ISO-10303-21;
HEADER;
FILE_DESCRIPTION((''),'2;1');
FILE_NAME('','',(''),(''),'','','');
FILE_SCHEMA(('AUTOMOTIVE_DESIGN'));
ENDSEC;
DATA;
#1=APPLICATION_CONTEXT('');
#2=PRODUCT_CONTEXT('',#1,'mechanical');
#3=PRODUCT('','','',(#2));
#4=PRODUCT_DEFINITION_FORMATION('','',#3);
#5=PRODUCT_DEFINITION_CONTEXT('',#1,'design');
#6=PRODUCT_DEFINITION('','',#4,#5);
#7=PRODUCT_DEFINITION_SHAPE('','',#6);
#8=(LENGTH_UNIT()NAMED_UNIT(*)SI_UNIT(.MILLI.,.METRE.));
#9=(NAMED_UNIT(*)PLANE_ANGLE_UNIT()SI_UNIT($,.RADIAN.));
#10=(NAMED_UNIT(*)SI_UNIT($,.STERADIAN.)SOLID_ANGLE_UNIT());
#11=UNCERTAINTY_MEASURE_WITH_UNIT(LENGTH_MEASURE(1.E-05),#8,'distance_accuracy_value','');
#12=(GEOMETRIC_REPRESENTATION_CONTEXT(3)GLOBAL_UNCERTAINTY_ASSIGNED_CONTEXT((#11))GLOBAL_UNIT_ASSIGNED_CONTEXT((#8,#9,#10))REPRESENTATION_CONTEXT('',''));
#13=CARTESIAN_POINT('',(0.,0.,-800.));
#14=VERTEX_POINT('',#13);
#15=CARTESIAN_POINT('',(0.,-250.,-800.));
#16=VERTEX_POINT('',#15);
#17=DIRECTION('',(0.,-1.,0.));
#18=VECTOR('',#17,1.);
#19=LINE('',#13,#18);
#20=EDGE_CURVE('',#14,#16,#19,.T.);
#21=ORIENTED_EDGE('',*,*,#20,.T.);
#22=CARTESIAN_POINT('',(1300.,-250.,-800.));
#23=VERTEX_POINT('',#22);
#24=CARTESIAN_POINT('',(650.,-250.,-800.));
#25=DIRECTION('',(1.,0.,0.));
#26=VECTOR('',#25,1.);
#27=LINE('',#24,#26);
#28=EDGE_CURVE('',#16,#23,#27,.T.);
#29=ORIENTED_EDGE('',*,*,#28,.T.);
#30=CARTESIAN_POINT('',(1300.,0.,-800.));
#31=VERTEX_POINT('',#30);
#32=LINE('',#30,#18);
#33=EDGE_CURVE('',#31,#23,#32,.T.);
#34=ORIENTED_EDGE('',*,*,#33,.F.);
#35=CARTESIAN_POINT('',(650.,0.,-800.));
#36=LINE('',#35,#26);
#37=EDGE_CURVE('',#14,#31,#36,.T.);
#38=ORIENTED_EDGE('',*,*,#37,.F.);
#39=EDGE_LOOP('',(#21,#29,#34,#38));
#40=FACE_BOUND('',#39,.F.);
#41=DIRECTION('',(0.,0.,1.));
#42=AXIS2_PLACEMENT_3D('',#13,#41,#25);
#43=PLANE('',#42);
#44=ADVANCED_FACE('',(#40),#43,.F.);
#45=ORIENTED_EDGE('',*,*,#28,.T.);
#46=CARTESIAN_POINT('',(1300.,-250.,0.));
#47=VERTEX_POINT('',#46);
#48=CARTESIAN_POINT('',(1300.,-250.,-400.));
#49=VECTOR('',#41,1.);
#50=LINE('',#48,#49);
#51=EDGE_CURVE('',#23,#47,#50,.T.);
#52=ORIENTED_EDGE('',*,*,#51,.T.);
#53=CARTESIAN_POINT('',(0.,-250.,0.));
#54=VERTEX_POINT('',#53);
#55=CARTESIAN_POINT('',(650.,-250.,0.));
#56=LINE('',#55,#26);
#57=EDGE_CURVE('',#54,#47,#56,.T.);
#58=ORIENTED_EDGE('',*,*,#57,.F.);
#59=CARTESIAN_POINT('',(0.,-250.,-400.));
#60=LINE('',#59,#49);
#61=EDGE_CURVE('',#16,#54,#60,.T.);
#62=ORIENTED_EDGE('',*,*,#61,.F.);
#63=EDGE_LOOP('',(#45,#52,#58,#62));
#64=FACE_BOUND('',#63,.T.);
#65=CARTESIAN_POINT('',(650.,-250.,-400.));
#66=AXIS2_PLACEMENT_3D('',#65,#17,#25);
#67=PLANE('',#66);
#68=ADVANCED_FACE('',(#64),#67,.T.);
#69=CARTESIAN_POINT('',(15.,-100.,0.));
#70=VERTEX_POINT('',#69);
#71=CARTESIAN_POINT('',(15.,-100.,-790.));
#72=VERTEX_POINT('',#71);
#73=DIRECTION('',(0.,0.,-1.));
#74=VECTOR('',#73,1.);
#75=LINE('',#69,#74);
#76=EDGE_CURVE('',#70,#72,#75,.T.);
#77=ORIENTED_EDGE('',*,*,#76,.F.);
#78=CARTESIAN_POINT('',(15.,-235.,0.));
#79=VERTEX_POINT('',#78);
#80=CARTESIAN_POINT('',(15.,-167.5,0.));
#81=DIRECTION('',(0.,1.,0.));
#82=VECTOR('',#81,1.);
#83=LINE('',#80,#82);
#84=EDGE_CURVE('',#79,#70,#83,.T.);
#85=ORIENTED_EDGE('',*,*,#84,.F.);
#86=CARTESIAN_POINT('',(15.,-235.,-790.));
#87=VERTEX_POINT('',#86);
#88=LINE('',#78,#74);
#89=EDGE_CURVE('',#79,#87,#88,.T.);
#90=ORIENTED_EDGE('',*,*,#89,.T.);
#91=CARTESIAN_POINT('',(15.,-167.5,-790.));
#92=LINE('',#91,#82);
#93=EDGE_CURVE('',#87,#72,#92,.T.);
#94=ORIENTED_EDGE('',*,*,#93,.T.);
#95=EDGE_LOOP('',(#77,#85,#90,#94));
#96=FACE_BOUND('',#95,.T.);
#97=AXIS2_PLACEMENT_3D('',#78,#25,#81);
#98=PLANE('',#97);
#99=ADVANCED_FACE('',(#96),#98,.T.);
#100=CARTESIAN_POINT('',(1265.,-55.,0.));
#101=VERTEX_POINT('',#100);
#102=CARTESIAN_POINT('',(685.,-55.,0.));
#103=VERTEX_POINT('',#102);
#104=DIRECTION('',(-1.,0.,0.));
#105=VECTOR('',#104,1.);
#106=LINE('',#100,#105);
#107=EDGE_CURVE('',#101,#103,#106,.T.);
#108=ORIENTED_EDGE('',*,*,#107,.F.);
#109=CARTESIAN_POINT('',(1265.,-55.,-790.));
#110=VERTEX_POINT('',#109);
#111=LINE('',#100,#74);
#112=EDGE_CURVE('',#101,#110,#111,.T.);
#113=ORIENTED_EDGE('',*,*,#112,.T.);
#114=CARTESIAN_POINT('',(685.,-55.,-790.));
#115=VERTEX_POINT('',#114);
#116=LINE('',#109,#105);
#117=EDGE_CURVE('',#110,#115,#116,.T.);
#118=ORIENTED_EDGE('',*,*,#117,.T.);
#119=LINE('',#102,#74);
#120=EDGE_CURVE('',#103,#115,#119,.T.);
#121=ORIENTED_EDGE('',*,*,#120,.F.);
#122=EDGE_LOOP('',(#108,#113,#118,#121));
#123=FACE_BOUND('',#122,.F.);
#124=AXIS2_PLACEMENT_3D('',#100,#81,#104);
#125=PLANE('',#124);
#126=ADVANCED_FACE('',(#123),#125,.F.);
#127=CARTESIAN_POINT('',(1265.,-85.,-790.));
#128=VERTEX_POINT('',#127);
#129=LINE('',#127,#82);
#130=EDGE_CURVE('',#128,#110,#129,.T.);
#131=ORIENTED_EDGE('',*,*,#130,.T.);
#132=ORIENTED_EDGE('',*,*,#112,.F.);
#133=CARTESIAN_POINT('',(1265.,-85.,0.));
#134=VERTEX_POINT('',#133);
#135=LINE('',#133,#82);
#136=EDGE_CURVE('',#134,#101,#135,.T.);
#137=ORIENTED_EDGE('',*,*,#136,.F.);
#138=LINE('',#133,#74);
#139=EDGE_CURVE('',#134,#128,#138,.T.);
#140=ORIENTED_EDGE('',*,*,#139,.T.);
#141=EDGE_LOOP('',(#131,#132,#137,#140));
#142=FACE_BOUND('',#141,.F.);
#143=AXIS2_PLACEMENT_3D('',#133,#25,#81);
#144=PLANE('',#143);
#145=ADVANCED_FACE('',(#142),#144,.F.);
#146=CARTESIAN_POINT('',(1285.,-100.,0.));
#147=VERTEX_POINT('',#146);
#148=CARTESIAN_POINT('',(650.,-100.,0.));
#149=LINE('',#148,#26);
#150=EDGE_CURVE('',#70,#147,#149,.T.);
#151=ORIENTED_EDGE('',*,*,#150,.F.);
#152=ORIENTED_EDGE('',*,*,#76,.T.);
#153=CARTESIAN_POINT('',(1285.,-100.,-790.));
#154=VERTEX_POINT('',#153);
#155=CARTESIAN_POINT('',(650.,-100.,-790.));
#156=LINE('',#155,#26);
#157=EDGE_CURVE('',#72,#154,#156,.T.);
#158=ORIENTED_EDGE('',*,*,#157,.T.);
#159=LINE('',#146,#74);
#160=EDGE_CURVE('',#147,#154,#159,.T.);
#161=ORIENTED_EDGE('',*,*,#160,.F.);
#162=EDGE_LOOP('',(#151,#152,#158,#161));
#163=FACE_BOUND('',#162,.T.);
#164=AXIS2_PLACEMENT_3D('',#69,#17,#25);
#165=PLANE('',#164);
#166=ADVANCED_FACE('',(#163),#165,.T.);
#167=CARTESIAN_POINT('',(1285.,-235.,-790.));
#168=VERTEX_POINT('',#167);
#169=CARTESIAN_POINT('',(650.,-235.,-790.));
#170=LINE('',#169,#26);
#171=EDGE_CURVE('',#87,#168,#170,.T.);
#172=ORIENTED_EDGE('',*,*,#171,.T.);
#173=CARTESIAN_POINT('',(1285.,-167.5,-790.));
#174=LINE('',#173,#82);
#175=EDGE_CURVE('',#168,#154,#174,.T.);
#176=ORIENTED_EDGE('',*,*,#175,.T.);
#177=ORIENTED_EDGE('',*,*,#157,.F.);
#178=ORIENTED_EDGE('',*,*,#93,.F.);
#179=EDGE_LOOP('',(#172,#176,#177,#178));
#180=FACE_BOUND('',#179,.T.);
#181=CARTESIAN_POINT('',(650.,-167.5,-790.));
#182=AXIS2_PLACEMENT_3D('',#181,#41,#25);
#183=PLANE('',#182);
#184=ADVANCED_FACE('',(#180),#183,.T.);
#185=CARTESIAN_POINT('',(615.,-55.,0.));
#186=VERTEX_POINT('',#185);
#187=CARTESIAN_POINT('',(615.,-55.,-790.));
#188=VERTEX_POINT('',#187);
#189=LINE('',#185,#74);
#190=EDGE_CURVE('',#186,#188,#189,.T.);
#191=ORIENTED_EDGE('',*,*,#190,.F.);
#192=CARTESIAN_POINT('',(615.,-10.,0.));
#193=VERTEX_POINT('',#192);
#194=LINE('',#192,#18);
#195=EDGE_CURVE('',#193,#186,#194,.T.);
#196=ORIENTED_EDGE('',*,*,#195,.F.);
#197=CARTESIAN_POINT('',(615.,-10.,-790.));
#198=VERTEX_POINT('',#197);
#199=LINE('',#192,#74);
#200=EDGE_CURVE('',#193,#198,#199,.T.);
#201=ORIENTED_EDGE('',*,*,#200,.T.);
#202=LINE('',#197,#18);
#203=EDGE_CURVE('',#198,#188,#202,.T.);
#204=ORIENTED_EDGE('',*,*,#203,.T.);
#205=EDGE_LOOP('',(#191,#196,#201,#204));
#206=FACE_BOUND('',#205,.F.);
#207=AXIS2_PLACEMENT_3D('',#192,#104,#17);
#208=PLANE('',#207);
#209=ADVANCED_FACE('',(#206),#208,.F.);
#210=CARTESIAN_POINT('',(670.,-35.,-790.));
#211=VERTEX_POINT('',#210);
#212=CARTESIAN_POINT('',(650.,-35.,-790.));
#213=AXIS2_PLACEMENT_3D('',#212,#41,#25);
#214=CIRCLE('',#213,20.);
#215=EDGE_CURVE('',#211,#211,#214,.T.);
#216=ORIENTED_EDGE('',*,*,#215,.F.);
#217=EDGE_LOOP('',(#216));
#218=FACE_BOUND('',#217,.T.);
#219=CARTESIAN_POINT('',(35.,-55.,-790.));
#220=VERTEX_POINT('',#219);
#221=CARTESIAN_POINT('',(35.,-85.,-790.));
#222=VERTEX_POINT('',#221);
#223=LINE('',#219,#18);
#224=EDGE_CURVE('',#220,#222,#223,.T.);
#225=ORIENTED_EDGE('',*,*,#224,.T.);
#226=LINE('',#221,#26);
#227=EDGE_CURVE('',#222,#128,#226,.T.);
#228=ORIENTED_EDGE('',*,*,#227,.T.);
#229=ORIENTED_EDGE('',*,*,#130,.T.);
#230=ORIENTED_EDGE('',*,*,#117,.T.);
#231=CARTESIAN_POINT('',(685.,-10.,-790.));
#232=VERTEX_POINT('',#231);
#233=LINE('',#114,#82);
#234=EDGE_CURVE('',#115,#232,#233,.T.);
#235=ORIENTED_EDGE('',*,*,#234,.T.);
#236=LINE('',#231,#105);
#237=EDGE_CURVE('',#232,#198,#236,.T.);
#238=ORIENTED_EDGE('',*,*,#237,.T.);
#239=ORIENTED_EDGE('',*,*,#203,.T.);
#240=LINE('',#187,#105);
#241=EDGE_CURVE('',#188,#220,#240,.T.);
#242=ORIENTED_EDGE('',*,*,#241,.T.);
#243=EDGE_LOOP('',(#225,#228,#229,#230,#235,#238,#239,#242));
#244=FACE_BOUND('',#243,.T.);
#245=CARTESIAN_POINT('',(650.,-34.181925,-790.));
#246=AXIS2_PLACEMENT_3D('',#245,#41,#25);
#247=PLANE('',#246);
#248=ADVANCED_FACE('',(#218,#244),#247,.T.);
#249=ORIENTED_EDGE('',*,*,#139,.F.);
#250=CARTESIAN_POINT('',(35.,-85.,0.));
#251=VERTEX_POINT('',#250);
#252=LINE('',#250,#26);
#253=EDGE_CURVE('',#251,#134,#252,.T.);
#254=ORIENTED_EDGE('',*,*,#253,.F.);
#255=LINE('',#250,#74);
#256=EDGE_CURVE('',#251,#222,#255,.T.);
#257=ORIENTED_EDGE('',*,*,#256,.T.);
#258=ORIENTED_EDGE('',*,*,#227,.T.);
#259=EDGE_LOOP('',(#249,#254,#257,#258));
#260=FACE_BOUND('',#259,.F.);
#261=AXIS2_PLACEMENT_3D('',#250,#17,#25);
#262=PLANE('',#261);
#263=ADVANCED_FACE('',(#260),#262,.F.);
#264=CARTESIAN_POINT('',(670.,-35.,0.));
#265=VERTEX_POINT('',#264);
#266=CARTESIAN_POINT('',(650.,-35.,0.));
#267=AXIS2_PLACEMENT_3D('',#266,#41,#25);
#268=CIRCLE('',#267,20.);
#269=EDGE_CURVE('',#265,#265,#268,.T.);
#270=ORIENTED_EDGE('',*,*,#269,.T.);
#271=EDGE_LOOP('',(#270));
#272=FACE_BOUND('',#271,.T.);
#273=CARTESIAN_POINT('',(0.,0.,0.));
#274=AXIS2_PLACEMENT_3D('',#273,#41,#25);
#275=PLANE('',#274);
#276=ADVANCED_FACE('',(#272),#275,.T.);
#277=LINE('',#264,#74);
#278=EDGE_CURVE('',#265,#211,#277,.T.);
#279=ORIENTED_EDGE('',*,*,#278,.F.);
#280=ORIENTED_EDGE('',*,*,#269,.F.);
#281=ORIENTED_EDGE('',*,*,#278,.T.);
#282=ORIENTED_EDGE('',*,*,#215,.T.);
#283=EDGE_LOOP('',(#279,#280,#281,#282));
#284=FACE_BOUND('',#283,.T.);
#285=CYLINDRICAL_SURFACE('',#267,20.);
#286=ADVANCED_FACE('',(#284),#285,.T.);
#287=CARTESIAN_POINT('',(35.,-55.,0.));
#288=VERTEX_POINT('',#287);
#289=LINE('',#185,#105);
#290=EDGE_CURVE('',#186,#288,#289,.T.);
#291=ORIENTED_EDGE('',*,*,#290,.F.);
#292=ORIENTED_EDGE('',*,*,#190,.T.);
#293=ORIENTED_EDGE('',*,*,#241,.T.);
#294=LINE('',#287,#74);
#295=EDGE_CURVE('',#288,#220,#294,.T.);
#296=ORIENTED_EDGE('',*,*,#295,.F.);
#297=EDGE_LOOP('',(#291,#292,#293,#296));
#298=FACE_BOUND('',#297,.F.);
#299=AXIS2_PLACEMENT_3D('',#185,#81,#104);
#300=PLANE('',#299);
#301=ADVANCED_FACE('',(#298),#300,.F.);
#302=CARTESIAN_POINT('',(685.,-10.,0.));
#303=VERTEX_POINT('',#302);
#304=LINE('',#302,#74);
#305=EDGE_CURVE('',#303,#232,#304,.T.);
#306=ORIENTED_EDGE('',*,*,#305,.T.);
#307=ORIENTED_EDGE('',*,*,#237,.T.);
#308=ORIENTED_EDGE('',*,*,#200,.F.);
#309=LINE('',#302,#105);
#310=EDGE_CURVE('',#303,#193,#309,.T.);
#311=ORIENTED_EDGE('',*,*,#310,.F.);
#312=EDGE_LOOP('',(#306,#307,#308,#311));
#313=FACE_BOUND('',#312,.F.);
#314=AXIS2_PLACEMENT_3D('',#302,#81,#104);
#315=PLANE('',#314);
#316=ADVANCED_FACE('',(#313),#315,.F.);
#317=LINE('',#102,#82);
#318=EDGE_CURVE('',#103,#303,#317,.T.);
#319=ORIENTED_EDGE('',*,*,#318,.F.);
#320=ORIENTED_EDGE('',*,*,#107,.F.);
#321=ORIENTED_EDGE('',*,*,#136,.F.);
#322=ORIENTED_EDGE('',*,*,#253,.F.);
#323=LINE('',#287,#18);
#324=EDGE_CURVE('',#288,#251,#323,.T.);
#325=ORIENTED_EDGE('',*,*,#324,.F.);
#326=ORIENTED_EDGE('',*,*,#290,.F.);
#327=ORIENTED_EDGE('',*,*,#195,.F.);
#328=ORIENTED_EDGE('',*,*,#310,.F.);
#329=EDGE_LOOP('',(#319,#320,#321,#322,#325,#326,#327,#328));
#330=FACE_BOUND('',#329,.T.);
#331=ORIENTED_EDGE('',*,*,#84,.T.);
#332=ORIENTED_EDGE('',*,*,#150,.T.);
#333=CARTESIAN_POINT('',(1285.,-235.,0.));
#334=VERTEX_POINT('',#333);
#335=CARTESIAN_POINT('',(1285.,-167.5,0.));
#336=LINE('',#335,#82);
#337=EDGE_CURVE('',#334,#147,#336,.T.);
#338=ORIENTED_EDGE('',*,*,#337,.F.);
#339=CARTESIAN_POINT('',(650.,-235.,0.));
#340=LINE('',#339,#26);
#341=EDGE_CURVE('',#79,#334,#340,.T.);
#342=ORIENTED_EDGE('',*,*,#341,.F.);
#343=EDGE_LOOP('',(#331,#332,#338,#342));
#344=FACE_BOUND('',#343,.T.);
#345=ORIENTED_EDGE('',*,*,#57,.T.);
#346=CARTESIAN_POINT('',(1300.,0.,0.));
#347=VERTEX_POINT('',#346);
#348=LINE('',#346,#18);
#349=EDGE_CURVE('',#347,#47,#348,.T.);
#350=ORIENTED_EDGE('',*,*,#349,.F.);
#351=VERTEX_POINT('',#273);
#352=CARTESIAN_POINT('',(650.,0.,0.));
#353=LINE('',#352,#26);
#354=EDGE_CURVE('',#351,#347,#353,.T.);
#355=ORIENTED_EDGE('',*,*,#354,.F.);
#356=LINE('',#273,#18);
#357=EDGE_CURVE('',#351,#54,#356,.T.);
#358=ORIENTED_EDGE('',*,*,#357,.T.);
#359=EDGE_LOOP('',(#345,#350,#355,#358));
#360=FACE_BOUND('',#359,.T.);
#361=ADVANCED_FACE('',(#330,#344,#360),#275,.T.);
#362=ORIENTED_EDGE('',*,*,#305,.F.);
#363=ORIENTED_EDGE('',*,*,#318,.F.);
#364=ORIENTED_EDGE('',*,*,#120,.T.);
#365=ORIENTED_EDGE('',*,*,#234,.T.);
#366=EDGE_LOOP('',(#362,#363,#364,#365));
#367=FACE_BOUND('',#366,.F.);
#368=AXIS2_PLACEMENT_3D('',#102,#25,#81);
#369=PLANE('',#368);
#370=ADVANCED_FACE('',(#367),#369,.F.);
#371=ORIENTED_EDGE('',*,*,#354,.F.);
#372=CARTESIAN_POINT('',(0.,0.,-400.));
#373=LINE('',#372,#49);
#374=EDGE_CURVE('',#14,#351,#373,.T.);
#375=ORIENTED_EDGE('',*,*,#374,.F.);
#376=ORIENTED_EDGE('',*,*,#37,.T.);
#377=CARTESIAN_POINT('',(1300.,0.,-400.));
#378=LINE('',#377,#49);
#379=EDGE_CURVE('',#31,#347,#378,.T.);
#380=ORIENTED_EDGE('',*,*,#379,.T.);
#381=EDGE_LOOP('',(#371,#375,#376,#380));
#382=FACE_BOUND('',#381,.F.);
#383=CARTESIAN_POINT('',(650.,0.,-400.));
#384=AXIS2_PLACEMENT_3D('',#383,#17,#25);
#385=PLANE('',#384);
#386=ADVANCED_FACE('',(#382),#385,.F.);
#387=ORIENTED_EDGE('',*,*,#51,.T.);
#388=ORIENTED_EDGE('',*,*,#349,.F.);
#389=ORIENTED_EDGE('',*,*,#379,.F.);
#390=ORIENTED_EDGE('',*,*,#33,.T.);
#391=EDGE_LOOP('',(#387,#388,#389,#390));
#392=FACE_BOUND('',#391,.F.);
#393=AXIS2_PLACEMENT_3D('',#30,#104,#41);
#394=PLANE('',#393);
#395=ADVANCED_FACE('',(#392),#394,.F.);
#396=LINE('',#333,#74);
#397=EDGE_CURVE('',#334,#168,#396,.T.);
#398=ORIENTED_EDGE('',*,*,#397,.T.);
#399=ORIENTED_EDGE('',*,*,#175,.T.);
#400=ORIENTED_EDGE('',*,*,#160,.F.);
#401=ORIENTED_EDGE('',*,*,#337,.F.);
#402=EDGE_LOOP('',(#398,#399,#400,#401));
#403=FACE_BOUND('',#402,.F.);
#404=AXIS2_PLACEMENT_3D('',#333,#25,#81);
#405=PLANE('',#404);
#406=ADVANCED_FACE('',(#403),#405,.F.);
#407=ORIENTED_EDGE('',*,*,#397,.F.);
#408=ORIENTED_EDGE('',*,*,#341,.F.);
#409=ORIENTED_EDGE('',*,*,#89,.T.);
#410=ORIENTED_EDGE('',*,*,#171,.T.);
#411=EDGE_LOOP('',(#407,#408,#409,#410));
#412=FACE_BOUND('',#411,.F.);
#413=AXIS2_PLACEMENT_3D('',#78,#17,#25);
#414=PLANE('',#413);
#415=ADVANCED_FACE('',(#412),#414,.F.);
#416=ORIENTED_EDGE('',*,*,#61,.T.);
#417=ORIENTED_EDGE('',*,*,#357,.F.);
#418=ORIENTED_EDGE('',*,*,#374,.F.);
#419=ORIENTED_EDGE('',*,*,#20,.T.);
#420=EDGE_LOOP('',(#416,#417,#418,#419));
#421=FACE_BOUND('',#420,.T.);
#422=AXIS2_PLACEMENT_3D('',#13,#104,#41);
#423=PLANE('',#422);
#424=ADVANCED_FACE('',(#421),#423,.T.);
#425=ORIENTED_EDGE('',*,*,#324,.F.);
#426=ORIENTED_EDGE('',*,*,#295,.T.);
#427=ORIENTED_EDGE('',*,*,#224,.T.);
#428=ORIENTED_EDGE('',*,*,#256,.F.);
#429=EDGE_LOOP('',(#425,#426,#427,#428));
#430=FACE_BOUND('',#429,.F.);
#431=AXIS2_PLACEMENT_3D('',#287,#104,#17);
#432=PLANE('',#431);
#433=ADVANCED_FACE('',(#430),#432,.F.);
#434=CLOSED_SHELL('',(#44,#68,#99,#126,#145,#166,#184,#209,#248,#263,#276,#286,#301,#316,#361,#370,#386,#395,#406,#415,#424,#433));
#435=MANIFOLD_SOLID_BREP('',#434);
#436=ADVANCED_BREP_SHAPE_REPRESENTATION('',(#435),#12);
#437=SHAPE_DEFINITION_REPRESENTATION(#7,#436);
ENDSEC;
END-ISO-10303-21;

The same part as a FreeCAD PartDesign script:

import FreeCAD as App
import Part
import Sketcher
Q = App.Units.Quantity


def add_polygon(sketch, points):
    """Adds a closed chain of lines whose ends are joined by coincident constraints."""
    first, n = sketch.GeometryCount, len(points)
    for a, b in zip(points, points[1:] + points[:1]):
        sketch.addGeometry(Part.LineSegment(App.Vector(*a, 0), App.Vector(*b, 0)), False)
    for i in range(n):
        sketch.addConstraint(Sketcher.Constraint("Coincident", first + i, 2, first + (i + 1) % n, 1))

doc = App.newDocument("Part")
body = doc.addObject("PartDesign::Body", "Body")

# Sketch on XZ plane
sketch1 = body.newObject("Sketcher::SketchObject", "Sketch")
sketch1.AttachmentSupport = (doc.getObject("XZ_Plane"), [""])
sketch1.MapMode = "FlatFace"
add_polygon(sketch1, [(0, 0), (0, -800), (1300, -800), (1300, 0)])  # lines 0-3
sketch1.addConstraint([
    Sketcher.Constraint("Vertical", 0),
    Sketcher.Constraint("Horizontal", 1),
    Sketcher.Constraint("Vertical", 2),
    Sketcher.Constraint("Horizontal", 3),
    Sketcher.Constraint("Coincident", 3, 2, -1, 1),
    Sketcher.Constraint("DistanceX", 1, 1, 1, 2, Q("1300 mm")),
    Sketcher.Constraint("DistanceY", 0, 2, 0, 1, Q("800 mm")),
])
pad1 = body.newObject("PartDesign::Pad", "Pad")
pad1.Profile = sketch1
pad1.Length = 250

# Sketch on XY plane
sketch2 = body.newObject("Sketcher::SketchObject", "Sketch001")
sketch2.AttachmentSupport = (doc.getObject("XY_Plane"), [""])
sketch2.MapMode = "FlatFace"
add_polygon(sketch2, [(615, -10), (615, -55), (35, -55), (35, -85), (1265, -85), (1265, -55), (685, -55), (685, -10)])  # lines 0-7
sketch2.addGeometry(Part.Circle(App.Vector(650, -35, 0), App.Vector(0, 0, 1), 20), False)  # 8
add_polygon(sketch2, [(15, -100), (15, -235), (1285, -235), (1285, -100)])  # lines 9-12
sketch2.addConstraint([
    Sketcher.Constraint("Vertical", 0),
    Sketcher.Constraint("Horizontal", 1),
    Sketcher.Constraint("Vertical", 2),
    Sketcher.Constraint("Horizontal", 3),
    Sketcher.Constraint("Vertical", 4),
    Sketcher.Constraint("Horizontal", 5),
    Sketcher.Constraint("Vertical", 6),
    Sketcher.Constraint("Horizontal", 7),
    Sketcher.Constraint("Vertical", 9),
    Sketcher.Constraint("Horizontal", 10),
    Sketcher.Constraint("Vertical", 11),
    Sketcher.Constraint("Horizontal", 12),
    Sketcher.Constraint("Horizontal", 1, 2, 4, 2),
    Sketcher.Constraint("Equal", 1, 5),
    Sketcher.Constraint("Diameter", 8, Q("40 mm")),
    Sketcher.Constraint("DistanceX", 1, 2, 1, 1, Q("580 mm")),
    Sketcher.Constraint("DistanceX", 3, 1, 3, 2, Q("1230 mm")),
    Sketcher.Constraint("DistanceX", 10, 1, 10, 2, Q("1270 mm")),
    Sketcher.Constraint("DistanceY", 0, 2, 0, 1, Q("45 mm")),
    Sketcher.Constraint("DistanceY", 2, 2, 2, 1, Q("30 mm")),
    Sketcher.Constraint("DistanceY", 9, 2, 9, 1, Q("135 mm")),
    Sketcher.Constraint("DistanceX", -1, 1, 8, 3, Q("650 mm")),
    Sketcher.Constraint("DistanceY", 8, 3, -1, 1, Q("35 mm")),
    Sketcher.Constraint("DistanceX", -1, 1, 0, 2, Q("615 mm")),
    Sketcher.Constraint("DistanceY", 0, 2, -1, 1, Q("55 mm")),
    Sketcher.Constraint("DistanceX", -1, 1, 9, 2, Q("15 mm")),
    Sketcher.Constraint("DistanceY", 9, 2, -1, 1, Q("235 mm")),
])
pocket1 = body.newObject("PartDesign::Pocket", "Pocket")
pocket1.Profile = sketch2
pocket1.Length = 790

doc.recompute()
